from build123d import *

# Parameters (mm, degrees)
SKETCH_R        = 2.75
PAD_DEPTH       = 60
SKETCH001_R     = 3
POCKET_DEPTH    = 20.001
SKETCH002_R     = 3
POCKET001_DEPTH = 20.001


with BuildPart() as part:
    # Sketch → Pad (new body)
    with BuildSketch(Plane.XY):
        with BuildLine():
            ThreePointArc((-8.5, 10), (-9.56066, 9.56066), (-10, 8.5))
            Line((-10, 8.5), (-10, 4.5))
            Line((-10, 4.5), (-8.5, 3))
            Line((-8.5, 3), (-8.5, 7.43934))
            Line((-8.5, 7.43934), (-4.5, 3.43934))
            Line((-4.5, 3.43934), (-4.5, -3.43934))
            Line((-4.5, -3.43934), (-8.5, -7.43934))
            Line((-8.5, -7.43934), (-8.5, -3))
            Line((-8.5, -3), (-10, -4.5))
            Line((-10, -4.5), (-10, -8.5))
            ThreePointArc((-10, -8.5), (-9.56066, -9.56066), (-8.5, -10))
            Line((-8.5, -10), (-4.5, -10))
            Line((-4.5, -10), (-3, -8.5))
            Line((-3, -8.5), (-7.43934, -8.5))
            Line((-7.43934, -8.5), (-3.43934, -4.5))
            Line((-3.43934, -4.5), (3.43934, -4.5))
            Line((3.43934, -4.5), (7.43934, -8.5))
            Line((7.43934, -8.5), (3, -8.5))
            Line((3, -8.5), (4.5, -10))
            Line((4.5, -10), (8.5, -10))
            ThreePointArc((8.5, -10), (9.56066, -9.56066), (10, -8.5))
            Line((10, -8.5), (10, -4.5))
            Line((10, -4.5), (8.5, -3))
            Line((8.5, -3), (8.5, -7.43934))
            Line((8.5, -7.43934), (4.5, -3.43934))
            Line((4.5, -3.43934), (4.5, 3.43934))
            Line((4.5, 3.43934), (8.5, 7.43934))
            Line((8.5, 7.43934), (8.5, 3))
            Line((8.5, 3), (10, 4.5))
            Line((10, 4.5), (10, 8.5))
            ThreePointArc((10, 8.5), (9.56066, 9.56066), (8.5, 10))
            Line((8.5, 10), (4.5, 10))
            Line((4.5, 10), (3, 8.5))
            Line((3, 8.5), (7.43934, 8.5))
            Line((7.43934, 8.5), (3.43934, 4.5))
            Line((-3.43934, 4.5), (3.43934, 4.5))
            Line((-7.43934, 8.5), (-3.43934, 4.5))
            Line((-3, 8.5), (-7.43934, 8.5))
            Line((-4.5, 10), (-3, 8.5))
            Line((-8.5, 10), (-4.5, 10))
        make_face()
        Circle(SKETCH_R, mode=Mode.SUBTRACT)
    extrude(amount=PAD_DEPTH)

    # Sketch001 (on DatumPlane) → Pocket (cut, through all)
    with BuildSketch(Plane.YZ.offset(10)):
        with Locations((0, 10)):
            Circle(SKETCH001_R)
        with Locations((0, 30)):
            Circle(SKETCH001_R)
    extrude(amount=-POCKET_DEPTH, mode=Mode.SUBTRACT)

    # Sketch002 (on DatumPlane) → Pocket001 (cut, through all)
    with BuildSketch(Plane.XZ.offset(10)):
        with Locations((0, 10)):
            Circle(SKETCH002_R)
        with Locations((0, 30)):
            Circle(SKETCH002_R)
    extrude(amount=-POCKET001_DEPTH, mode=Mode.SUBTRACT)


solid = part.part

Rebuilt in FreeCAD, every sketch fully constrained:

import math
import FreeCAD as App
import Part
import Sketcher

doc = App.newDocument("Part")
body = doc.addObject("PartDesign::Body", "Body")

sketch1 = doc.addObject("Sketcher::SketchObject", "Sketch")
body.addObject(sketch1)
sketch1.AttachmentSupport = (doc.XY_Plane, [""])
sketch1.MapMode = "FlatFace"
sketch1.addGeometry([
    Part.ArcOfCircle(Part.Circle(App.Vector(-8.499999, 8.499999, 0), App.Vector(0, 0, 1), 1.500001), math.radians(90.000022), math.radians(179.999978)),
    Part.LineSegment(App.Vector(-10, 8.5, 0), App.Vector(-10, 4.5, 0)),
    Part.LineSegment(App.Vector(-10, 4.5, 0), App.Vector(-8.5, 3, 0)),
    Part.LineSegment(App.Vector(-8.5, 3, 0), App.Vector(-8.5, 7.43934, 0)),
    Part.LineSegment(App.Vector(-8.5, 7.43934, 0), App.Vector(-4.5, 3.43934, 0)),
    Part.LineSegment(App.Vector(-4.5, 3.43934, 0), App.Vector(-4.5, -3.43934, 0)),
    Part.LineSegment(App.Vector(-4.5, -3.43934, 0), App.Vector(-8.5, -7.43934, 0)),
    Part.LineSegment(App.Vector(-8.5, -7.43934, 0), App.Vector(-8.5, -3, 0)),
    Part.LineSegment(App.Vector(-8.5, -3, 0), App.Vector(-10, -4.5, 0)),
    Part.LineSegment(App.Vector(-10, -4.5, 0), App.Vector(-10, -8.5, 0)),
    Part.ArcOfCircle(Part.Circle(App.Vector(-8.499999, -8.499999, 0), App.Vector(0, 0, 1), 1.500001), math.radians(-179.999978), math.radians(-90.000022)),
    Part.LineSegment(App.Vector(-8.5, -10, 0), App.Vector(-4.5, -10, 0)),
    Part.LineSegment(App.Vector(-4.5, -10, 0), App.Vector(-3, -8.5, 0)),
    Part.LineSegment(App.Vector(-3, -8.5, 0), App.Vector(-7.43934, -8.5, 0)),
    Part.LineSegment(App.Vector(-7.43934, -8.5, 0), App.Vector(-3.43934, -4.5, 0)),
    Part.LineSegment(App.Vector(-3.43934, -4.5, 0), App.Vector(3.43934, -4.5, 0)),
    Part.LineSegment(App.Vector(3.43934, -4.5, 0), App.Vector(7.43934, -8.5, 0)),
    Part.LineSegment(App.Vector(7.43934, -8.5, 0), App.Vector(3, -8.5, 0)),
    Part.LineSegment(App.Vector(3, -8.5, 0), App.Vector(4.5, -10, 0)),
    Part.LineSegment(App.Vector(4.5, -10, 0), App.Vector(8.5, -10, 0)),
    Part.ArcOfCircle(Part.Circle(App.Vector(8.499999, -8.499999, 0), App.Vector(0, 0, 1), 1.500001), math.radians(-89.999978), math.radians(-0.000022)),
    Part.LineSegment(App.Vector(10, -8.5, 0), App.Vector(10, -4.5, 0)),
    Part.LineSegment(App.Vector(10, -4.5, 0), App.Vector(8.5, -3, 0)),
    Part.LineSegment(App.Vector(8.5, -3, 0), App.Vector(8.5, -7.43934, 0)),
    Part.LineSegment(App.Vector(8.5, -7.43934, 0), App.Vector(4.5, -3.43934, 0)),
    Part.LineSegment(App.Vector(4.5, -3.43934, 0), App.Vector(4.5, 3.43934, 0)),
    Part.LineSegment(App.Vector(4.5, 3.43934, 0), App.Vector(8.5, 7.43934, 0)),
    Part.LineSegment(App.Vector(8.5, 7.43934, 0), App.Vector(8.5, 3, 0)),
    Part.LineSegment(App.Vector(8.5, 3, 0), App.Vector(10, 4.5, 0)),
    Part.LineSegment(App.Vector(10, 4.5, 0), App.Vector(10, 8.5, 0)),
    Part.ArcOfCircle(Part.Circle(App.Vector(8.499999, 8.499999, 0), App.Vector(0, 0, 1), 1.500001), math.radians(0.000022), math.radians(89.999978)),
    Part.LineSegment(App.Vector(8.5, 10, 0), App.Vector(4.5, 10, 0)),
    Part.LineSegment(App.Vector(4.5, 10, 0), App.Vector(3, 8.5, 0)),
    Part.LineSegment(App.Vector(3, 8.5, 0), App.Vector(7.43934, 8.5, 0)),
    Part.LineSegment(App.Vector(7.43934, 8.5, 0), App.Vector(3.43934, 4.5, 0)),
    Part.LineSegment(App.Vector(3.43934, 4.5, 0), App.Vector(-3.43934, 4.5, 0)),
    Part.LineSegment(App.Vector(-3.43934, 4.5, 0), App.Vector(-7.43934, 8.5, 0)),
    Part.LineSegment(App.Vector(-7.43934, 8.5, 0), App.Vector(-3, 8.5, 0)),
    Part.LineSegment(App.Vector(-3, 8.5, 0), App.Vector(-4.5, 10, 0)),
    Part.LineSegment(App.Vector(-4.5, 10, 0), App.Vector(-8.5, 10, 0)),
    Part.Circle(App.Vector(0, 0, 0), App.Vector(0, 0, 1), 2.75),
], False)
sketch1.addConstraint([
    Sketcher.Constraint("Tangent", 0, 2, 1, 1),
    Sketcher.Constraint("Coincident", 1, 2, 2, 1),
    Sketcher.Constraint("Coincident", 2, 2, 3, 1),
    Sketcher.Constraint("Coincident", 3, 2, 4, 1),
    Sketcher.Constraint("Coincident", 4, 2, 5, 1),
    Sketcher.Constraint("Coincident", 5, 2, 6, 1),
    Sketcher.Constraint("Coincident", 6, 2, 7, 1),
    Sketcher.Constraint("Coincident", 7, 2, 8, 1),
    Sketcher.Constraint("Coincident", 8, 2, 9, 1),
    Sketcher.Constraint("Tangent", 9, 2, 10, 1),
    Sketcher.Constraint("Tangent", 10, 2, 11, 1),
    Sketcher.Constraint("Coincident", 11, 2, 12, 1),
    Sketcher.Constraint("Coincident", 12, 2, 13, 1),
    Sketcher.Constraint("Coincident", 13, 2, 14, 1),
    Sketcher.Constraint("Coincident", 14, 2, 15, 1),
    Sketcher.Constraint("Coincident", 15, 2, 16, 1),
    Sketcher.Constraint("Coincident", 16, 2, 17, 1),
    Sketcher.Constraint("Coincident", 17, 2, 18, 1),
    Sketcher.Constraint("Coincident", 18, 2, 19, 1),
    Sketcher.Constraint("Tangent", 19, 2, 20, 1),
    Sketcher.Constraint("Tangent", 20, 2, 21, 1),
    Sketcher.Constraint("Coincident", 21, 2, 22, 1),
    Sketcher.Constraint("Coincident", 22, 2, 23, 1),
    Sketcher.Constraint("Coincident", 23, 2, 24, 1),
    Sketcher.Constraint("Coincident", 24, 2, 25, 1),
    Sketcher.Constraint("Coincident", 25, 2, 26, 1),
    Sketcher.Constraint("Coincident", 26, 2, 27, 1),
    Sketcher.Constraint("Coincident", 27, 2, 28, 1),
    Sketcher.Constraint("Coincident", 28, 2, 29, 1),
    Sketcher.Constraint("Tangent", 29, 2, 30, 1),
    Sketcher.Constraint("Tangent", 30, 2, 31, 1),
    Sketcher.Constraint("Coincident", 31, 2, 32, 1),
    Sketcher.Constraint("Coincident", 32, 2, 33, 1),
    Sketcher.Constraint("Coincident", 33, 2, 34, 1),
    Sketcher.Constraint("Coincident", 34, 2, 35, 1),
    Sketcher.Constraint("Coincident", 35, 2, 36, 1),
    Sketcher.Constraint("Coincident", 36, 2, 37, 1),
    Sketcher.Constraint("Coincident", 37, 2, 38, 1),
    Sketcher.Constraint("Coincident", 38, 2, 39, 1),
    Sketcher.Constraint("Tangent", 39, 2, 0, 1),
    Sketcher.Constraint("Vertical", 1),
    Sketcher.Constraint("Vertical", 3),
    Sketcher.Constraint("Vertical", 5),
    Sketcher.Constraint("Vertical", 7),
    Sketcher.Constraint("Vertical", 9),
    Sketcher.Constraint("Horizontal", 11),
    Sketcher.Constraint("Horizontal", 13),
    Sketcher.Constraint("Horizontal", 15),
    Sketcher.Constraint("Horizontal", 17),
    Sketcher.Constraint("Horizontal", 19),
    Sketcher.Constraint("Vertical", 21),
    Sketcher.Constraint("Vertical", 23),
    Sketcher.Constraint("Vertical", 25),
    Sketcher.Constraint("Vertical", 27),
    Sketcher.Constraint("Vertical", 29),
    Sketcher.Constraint("Horizontal", 31),
    Sketcher.Constraint("Horizontal", 33),
    Sketcher.Constraint("Horizontal", 35),
    Sketcher.Constraint("Horizontal", 37),
    Sketcher.Constraint("Horizontal", 39),
    Sketcher.Constraint("Coincident", 40, 3, -1, 1),
    Sketcher.Constraint("Equal", 0, 10),
    Sketcher.Constraint("Equal", 10, 20),
    Sketcher.Constraint("Equal", 20, 30),
    Sketcher.Constraint("Symmetric", 0, 3, 20, 3, -1, 1),
    Sketcher.Constraint("Symmetric", 10, 3, 30, 3, -1, 1),
    Sketcher.Constraint("Symmetric", 2, 2, 22, 2, -1, 1),
    Sketcher.Constraint("Symmetric", 4, 2, 24, 2, -1, 1),
    Sketcher.Constraint("Symmetric", 6, 2, 26, 2, -1, 1),
    Sketcher.Constraint("Symmetric", 12, 2, 32, 2, -1, 1),
    Sketcher.Constraint("Symmetric", 14, 2, 34, 2, -1, 1),
    Sketcher.Constraint("Symmetric", 16, 2, 36, 2, -1, 1),
    Sketcher.Constraint("Symmetric", 10, 3, 20, 3, -2),
    Sketcher.Constraint("Symmetric", 13, 2, 16, 2, -2),
    Sketcher.Constraint("Symmetric", 7, 2, 22, 2, -2),
    Sketcher.Constraint("Parallel", 2, 4),
    Sketcher.Constraint("Perpendicular", 4, 6),
    Sketcher.Constraint("Parallel", 6, 8),
    Sketcher.Constraint("Parallel", 8, 12),
    Sketcher.Constraint("Parallel", 12, 14),
    Sketcher.Constraint("Perpendicular", 14, 16),
    Sketcher.Constraint("Parallel", 16, 18),
    Sketcher.Constraint("Parallel", 18, 22),
    Sketcher.Constraint("Parallel", 22, 24),
    Sketcher.Constraint("Perpendicular", 24, 26),
    Sketcher.Constraint("Parallel", 26, 28),
    Sketcher.Constraint("Parallel", 28, 32),
    Sketcher.Constraint("Parallel", 32, 34),
    Sketcher.Constraint("Perpendicular", 34, 36),
    Sketcher.Constraint("Parallel", 36, 38),
    Sketcher.Constraint("Horizontal", 9, 2, 12, 2),
    Sketcher.Constraint("Horizontal", 8, 2, 14, 2),
    Sketcher.Constraint("Horizontal", 15, 2, 21, 2),
    Sketcher.Constraint("Horizontal", 6, 2, 23, 2),
    Sketcher.Constraint("Horizontal", 2, 2, 27, 2),
    Sketcher.Constraint("Vertical", 10, 3, 2, 2),
    Sketcher.Constraint("Vertical", 5, 2, 11, 2),
    Sketcher.Constraint("Vertical", 18, 2, 24, 2),
    Sketcher.Constraint("Vertical", 12, 2, 37, 2),
    Sketcher.Constraint("Equal", 39, 1),
    Sketcher.Constraint("Equal", 37, 3),
    Sketcher.Constraint("Equal", 35, 5),
    Sketcher.Constraint("Diameter", 40, 5.5),
    Sketcher.Constraint("Radius", 0, 1.500001),
    Sketcher.Constraint("DistanceX", 11, 1, 11, 2, 4.0),
    Sketcher.Constraint("DistanceX", 0, 2, -1, 1, 10.0),
    Sketcher.Constraint("DistanceX", 13, 2, 13, 1, 4.43934),
])
pad1 = doc.addObject("PartDesign::Pad", "Pad")
body.addObject(pad1)
pad1.Profile = sketch1
pad1.Length = 60

sketch2 = doc.addObject("Sketcher::SketchObject", "Sketch001")
body.addObject(sketch2)
sketch2.AttachmentSupport = (doc.YZ_Plane, [""])
sketch2.MapMode = "FlatFace"
sketch2.AttachmentOffset = App.Placement(App.Vector(0, 0, 10), App.Rotation())
sketch2.addGeometry([
    Part.Circle(App.Vector(0, 10, 0), App.Vector(0, 0, 1), 3),
    Part.Circle(App.Vector(0, 30, 0), App.Vector(0, 0, 1), 3),
], False)
sketch2.addConstraint([
    Sketcher.Constraint("Equal", 0, 1),
    Sketcher.Constraint("PointOnObject", 0, 3, -2),
    Sketcher.Constraint("PointOnObject", 1, 3, -2),
    Sketcher.Constraint("Diameter", 0, 6.0),
    Sketcher.Constraint("DistanceY", -1, 1, 0, 3, 10.0),
    Sketcher.Constraint("DistanceY", -1, 1, 1, 3, 30.0),
])
pocket1 = doc.addObject("PartDesign::Pocket", "Pocket")
body.addObject(pocket1)
pocket1.Profile = sketch2
pocket1.Type = "ThroughAll"

sketch3 = doc.addObject("Sketcher::SketchObject", "Sketch002")
body.addObject(sketch3)
sketch3.AttachmentSupport = (doc.XZ_Plane, [""])
sketch3.MapMode = "FlatFace"
sketch3.AttachmentOffset = App.Placement(App.Vector(0, 0, 10), App.Rotation())
sketch3.addGeometry([
    Part.Circle(App.Vector(0, 10, 0), App.Vector(0, 0, 1), 3),
    Part.Circle(App.Vector(0, 30, 0), App.Vector(0, 0, 1), 3),
], False)
sketch3.addConstraint([
    Sketcher.Constraint("Equal", 0, 1),
    Sketcher.Constraint("PointOnObject", 0, 3, -2),
    Sketcher.Constraint("PointOnObject", 1, 3, -2),
    Sketcher.Constraint("Diameter", 0, 6.0),
    Sketcher.Constraint("DistanceY", -1, 1, 0, 3, 10.0),
    Sketcher.Constraint("DistanceY", -1, 1, 1, 3, 30.0),
])
pocket2 = doc.addObject("PartDesign::Pocket", "Pocket001")
body.addObject(pocket2)
pocket2.Profile = sketch3
pocket2.Type = "ThroughAll"

doc.recompute()
